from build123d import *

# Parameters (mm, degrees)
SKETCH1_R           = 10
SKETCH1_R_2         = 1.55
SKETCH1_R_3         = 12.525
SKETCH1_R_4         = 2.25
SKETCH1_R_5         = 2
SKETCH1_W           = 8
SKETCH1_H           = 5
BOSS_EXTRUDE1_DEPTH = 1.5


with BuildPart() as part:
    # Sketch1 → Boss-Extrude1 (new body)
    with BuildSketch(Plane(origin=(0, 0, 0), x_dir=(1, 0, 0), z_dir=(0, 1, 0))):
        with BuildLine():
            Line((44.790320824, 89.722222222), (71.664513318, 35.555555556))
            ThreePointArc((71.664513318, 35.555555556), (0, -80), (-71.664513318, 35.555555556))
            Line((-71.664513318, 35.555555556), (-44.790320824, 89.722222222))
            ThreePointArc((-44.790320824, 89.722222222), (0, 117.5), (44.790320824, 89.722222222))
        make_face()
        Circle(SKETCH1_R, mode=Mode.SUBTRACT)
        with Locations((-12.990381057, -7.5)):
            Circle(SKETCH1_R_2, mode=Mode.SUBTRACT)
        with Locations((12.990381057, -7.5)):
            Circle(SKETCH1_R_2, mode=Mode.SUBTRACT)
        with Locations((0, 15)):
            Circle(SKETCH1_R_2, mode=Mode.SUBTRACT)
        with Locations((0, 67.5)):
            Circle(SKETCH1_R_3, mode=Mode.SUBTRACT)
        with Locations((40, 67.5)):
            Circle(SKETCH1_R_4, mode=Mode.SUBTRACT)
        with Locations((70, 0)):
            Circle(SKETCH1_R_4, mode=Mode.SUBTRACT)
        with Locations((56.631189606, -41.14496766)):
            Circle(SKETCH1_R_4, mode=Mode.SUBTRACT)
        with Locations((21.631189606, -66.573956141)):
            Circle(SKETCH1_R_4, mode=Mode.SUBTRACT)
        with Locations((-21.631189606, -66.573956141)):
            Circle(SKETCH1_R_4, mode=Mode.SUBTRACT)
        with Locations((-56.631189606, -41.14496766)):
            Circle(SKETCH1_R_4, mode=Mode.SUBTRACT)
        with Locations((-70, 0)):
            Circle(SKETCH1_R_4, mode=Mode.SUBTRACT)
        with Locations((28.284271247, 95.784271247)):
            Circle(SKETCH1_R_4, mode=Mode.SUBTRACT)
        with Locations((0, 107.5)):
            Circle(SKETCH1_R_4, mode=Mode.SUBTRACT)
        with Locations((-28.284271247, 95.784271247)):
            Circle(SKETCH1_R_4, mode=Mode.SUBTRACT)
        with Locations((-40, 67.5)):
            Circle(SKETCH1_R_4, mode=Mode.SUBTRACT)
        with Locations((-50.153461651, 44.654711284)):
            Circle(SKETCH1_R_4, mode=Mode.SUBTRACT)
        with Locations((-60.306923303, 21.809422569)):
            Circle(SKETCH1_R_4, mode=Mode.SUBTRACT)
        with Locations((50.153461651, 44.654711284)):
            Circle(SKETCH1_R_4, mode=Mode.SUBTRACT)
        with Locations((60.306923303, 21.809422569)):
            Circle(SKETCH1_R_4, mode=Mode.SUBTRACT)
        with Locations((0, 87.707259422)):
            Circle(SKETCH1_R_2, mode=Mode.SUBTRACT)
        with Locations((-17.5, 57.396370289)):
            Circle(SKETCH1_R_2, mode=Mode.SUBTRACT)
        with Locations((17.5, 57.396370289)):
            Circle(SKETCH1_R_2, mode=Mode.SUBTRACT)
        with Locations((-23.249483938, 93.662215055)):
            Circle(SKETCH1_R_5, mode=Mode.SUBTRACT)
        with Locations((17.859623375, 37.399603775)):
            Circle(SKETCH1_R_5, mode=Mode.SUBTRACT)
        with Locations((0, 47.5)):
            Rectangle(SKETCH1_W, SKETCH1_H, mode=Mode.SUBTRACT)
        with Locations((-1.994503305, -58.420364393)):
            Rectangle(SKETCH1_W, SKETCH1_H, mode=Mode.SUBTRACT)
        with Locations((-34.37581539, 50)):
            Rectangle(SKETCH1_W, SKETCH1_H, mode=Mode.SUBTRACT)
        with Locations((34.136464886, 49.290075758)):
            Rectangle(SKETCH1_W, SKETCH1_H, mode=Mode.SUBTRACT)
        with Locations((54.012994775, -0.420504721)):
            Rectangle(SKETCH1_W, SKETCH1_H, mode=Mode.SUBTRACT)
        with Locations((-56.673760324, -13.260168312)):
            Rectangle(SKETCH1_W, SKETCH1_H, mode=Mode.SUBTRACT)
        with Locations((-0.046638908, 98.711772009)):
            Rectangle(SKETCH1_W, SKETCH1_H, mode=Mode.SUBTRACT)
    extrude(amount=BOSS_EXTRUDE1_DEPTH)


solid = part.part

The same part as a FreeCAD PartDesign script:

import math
import FreeCAD as App
import Part
import Sketcher

V = App.Vector
Q = App.Units.Quantity

doc = App.newDocument("Part")
body = doc.addObject("PartDesign::Body", "Body")

# Sketch on XZ plane
sketch1 = doc.addObject("Sketcher::SketchObject", "Sketch")
body.addObject(sketch1)
sketch1.AttachmentSupport = (doc.XZ_Plane, [""])
sketch1.MapMode = "FlatFace"
sketch1.addGeometry([
    Part.LineSegment(V(71.7, -35.6, 0), V(44.8, -89.7, 0)),  # 0
    Part.ArcOfCircle(Part.Circle(V(0, -67.5, 0), V(0, 0, 1), 50), math.radians(-154), math.radians(-26)),  # 1
    Part.LineSegment(V(-44.8, -89.7, 0), V(-71.7, -35.6, 0)),  # 2
    Part.ArcOfCircle(Part.Circle(V(0, 0, 0), V(0, 0, 1), 80), math.radians(-26), math.radians(206)),  # 3
    Part.Circle(V(56.6, 41.1, 0), V(0, 0, 1), 2.2),  # 4
    Part.Circle(V(21.6, 66.6, 0), V(0, 0, 1), 2.2),  # 5
    Part.Circle(V(70, 0, 0), V(0, 0, 1), 2.2),  # 6
    Part.LineSegment(V(50, 2.9, 0), V(50, -2.1, 0)),  # 7
    Part.LineSegment(V(50, -2.1, 0), V(58, -2.1, 0)),  # 8
    Part.LineSegment(V(58, -2.1, 0), V(58, 2.9, 0)),  # 9
    Part.LineSegment(V(58, 2.9, 0), V(50, 2.9, 0)),  # 10
    Part.Circle(V(13, 7.5, 0), V(0, 0, 1), 1.6),  # 11
    Part.LineSegment(V(-6, 60.9, 0), V(-6, 55.9, 0)),  # 12
    Part.LineSegment(V(-6, 55.9, 0), V(2, 55.9, 0)),  # 13
    Part.LineSegment(V(2, 55.9, 0), V(2, 60.9, 0)),  # 14
    Part.LineSegment(V(2, 60.9, 0), V(-6, 60.9, 0)),  # 15
    Part.Circle(V(-21.6, 66.6, 0), V(0, 0, 1), 2.2),  # 16
    Part.Circle(V(-56.6, 41.1, 0), V(0, 0, 1), 2.2),  # 17
    Part.Circle(V(-13, 7.5, 0), V(0, 0, 1), 1.6),  # 18
    Part.Circle(V(0, 0, 0), V(0, 0, 1), 10),  # 19
    Part.Circle(V(0, -15, 0), V(0, 0, 1), 1.6),  # 20
    Part.LineSegment(V(-60.7, 15.8, 0), V(-60.7, 10.8, 0)),  # 21
    Part.LineSegment(V(-60.7, 10.8, 0), V(-52.7, 10.8, 0)),  # 22
    Part.LineSegment(V(-52.7, 10.8, 0), V(-52.7, 15.8, 0)),  # 23
    Part.LineSegment(V(-52.7, 15.8, 0), V(-60.7, 15.8, 0)),  # 24
    Part.Circle(V(-70, 0, 0), V(0, 0, 1), 2.2),  # 25
    Part.Circle(V(60.3, -21.8, 0), V(0, 0, 1), 2.2),  # 26
    Part.Circle(V(50.2, -44.7, 0), V(0, 0, 1), 2.2),  # 27
    Part.Circle(V(17.9, -37.4, 0), V(0, 0, 1), 2),  # 28
    Part.LineSegment(V(30.1, -46.8, 0), V(30.1, -51.8, 0)),  # 29
    Part.LineSegment(V(30.1, -51.8, 0), V(38.1, -51.8, 0)),  # 30
    Part.LineSegment(V(38.1, -51.8, 0), V(38.1, -46.8, 0)),  # 31
    Part.LineSegment(V(38.1, -46.8, 0), V(30.1, -46.8, 0)),  # 32
    Part.Circle(V(17.5, -57.4, 0), V(0, 0, 1), 1.6),  # 33
    Part.Circle(V(40, -67.5, 0), V(0, 0, 1), 2.2),  # 34
    Part.Circle(V(28.3, -95.8, 0), V(0, 0, 1), 2.2),  # 35
    Part.LineSegment(V(-4, -45, 0), V(-4, -50, 0)),  # 36
    Part.LineSegment(V(-4, -50, 0), V(4, -50, 0)),  # 37
    Part.LineSegment(V(4, -50, 0), V(4, -45, 0)),  # 38
    Part.LineSegment(V(4, -45, 0), V(-4, -45, 0)),  # 39
    Part.Circle(V(-17.5, -57.4, 0), V(0, 0, 1), 1.6),  # 40
    Part.LineSegment(V(-38.4, -47.5, 0), V(-38.4, -52.5, 0)),  # 41
    Part.LineSegment(V(-38.4, -52.5, 0), V(-30.4, -52.5, 0)),  # 42
    Part.LineSegment(V(-30.4, -52.5, 0), V(-30.4, -47.5, 0)),  # 43
    Part.LineSegment(V(-30.4, -47.5, 0), V(-38.4, -47.5, 0)),  # 44
    Part.Circle(V(-60.3, -21.8, 0), V(0, 0, 1), 2.2),  # 45
    Part.Circle(V(-50.2, -44.7, 0), V(0, 0, 1), 2.2),  # 46
    Part.Circle(V(0, -67.5, 0), V(0, 0, 1), 12.5),  # 47
    Part.Circle(V(0, -87.7, 0), V(0, 0, 1), 1.6),  # 48
    Part.LineSegment(V(-4, -96.2, 0), V(-4, -101.2, 0)),  # 49
    Part.LineSegment(V(-4, -101.2, 0), V(4, -101.2, 0)),  # 50
    Part.LineSegment(V(4, -101.2, 0), V(4, -96.2, 0)),  # 51
    Part.LineSegment(V(4, -96.2, 0), V(-4, -96.2, 0)),  # 52
    Part.Circle(V(0, -107.5, 0), V(0, 0, 1), 2.2),  # 53
    Part.Circle(V(-23.2, -93.7, 0), V(0, 0, 1), 2),  # 54
    Part.Circle(V(-28.3, -95.8, 0), V(0, 0, 1), 2.2),  # 55
    Part.Circle(V(-40, -67.5, 0), V(0, 0, 1), 2.2),  # 56
], False)
sketch1.addConstraint([
    Sketcher.Constraint("Tangent", 0, 2, 1, 2),
    Sketcher.Constraint("Tangent", 1, 1, 2, 1),
    Sketcher.Constraint("Tangent", 2, 2, 3, 2),
    Sketcher.Constraint("Tangent", 3, 1, 0, 1),
    Sketcher.Constraint("Coincident", 7, 2, 8, 1),
    Sketcher.Constraint("Coincident", 8, 2, 9, 1),
    Sketcher.Constraint("Coincident", 9, 2, 10, 1),
    Sketcher.Constraint("Coincident", 10, 2, 7, 1),
    Sketcher.Constraint("Coincident", 12, 2, 13, 1),
    Sketcher.Constraint("Coincident", 13, 2, 14, 1),
    Sketcher.Constraint("Coincident", 14, 2, 15, 1),
    Sketcher.Constraint("Coincident", 15, 2, 12, 1),
    Sketcher.Constraint("Coincident", 21, 2, 22, 1),
    Sketcher.Constraint("Coincident", 22, 2, 23, 1),
    Sketcher.Constraint("Coincident", 23, 2, 24, 1),
    Sketcher.Constraint("Coincident", 24, 2, 21, 1),
    Sketcher.Constraint("Coincident", 29, 2, 30, 1),
    Sketcher.Constraint("Coincident", 30, 2, 31, 1),
    Sketcher.Constraint("Coincident", 31, 2, 32, 1),
    Sketcher.Constraint("Coincident", 32, 2, 29, 1),
    Sketcher.Constraint("Coincident", 36, 2, 37, 1),
    Sketcher.Constraint("Coincident", 37, 2, 38, 1),
    Sketcher.Constraint("Coincident", 38, 2, 39, 1),
    Sketcher.Constraint("Coincident", 39, 2, 36, 1),
    Sketcher.Constraint("Coincident", 41, 2, 42, 1),
    Sketcher.Constraint("Coincident", 42, 2, 43, 1),
    Sketcher.Constraint("Coincident", 43, 2, 44, 1),
    Sketcher.Constraint("Coincident", 44, 2, 41, 1),
    Sketcher.Constraint("Coincident", 49, 2, 50, 1),
    Sketcher.Constraint("Coincident", 50, 2, 51, 1),
    Sketcher.Constraint("Coincident", 51, 2, 52, 1),
    Sketcher.Constraint("Coincident", 52, 2, 49, 1),
    Sketcher.Constraint("Vertical", 7),
    Sketcher.Constraint("Horizontal", 8),
    Sketcher.Constraint("Vertical", 9),
    Sketcher.Constraint("Horizontal", 10),
    Sketcher.Constraint("Vertical", 12),
    Sketcher.Constraint("Horizontal", 13),
    Sketcher.Constraint("Vertical", 14),
    Sketcher.Constraint("Horizontal", 15),
    Sketcher.Constraint("Vertical", 21),
    Sketcher.Constraint("Horizontal", 22),
    Sketcher.Constraint("Vertical", 23),
    Sketcher.Constraint("Horizontal", 24),
    Sketcher.Constraint("Vertical", 29),
    Sketcher.Constraint("Horizontal", 30),
    Sketcher.Constraint("Vertical", 31),
    Sketcher.Constraint("Horizontal", 32),
    Sketcher.Constraint("Vertical", 36),
    Sketcher.Constraint("Horizontal", 37),
    Sketcher.Constraint("Vertical", 38),
    Sketcher.Constraint("Horizontal", 39),
    Sketcher.Constraint("Vertical", 41),
    Sketcher.Constraint("Horizontal", 42),
    Sketcher.Constraint("Vertical", 43),
    Sketcher.Constraint("Horizontal", 44),
    Sketcher.Constraint("Vertical", 49),
    Sketcher.Constraint("Horizontal", 50),
    Sketcher.Constraint("Vertical", 51),
    Sketcher.Constraint("Horizontal", 52),
    Sketcher.Constraint("Coincident", 3, 3, -1, 1),
    Sketcher.Constraint("Coincident", 19, 3, -1, 1),
    Sketcher.Constraint("Coincident", 47, 3, 1, 3),
    Sketcher.Constraint("Equal", 4, 5),
    Sketcher.Constraint("Equal", 5, 6),
    Sketcher.Constraint("Equal", 6, 16),
    Sketcher.Constraint("Equal", 16, 17),
    Sketcher.Constraint("Equal", 11, 18),
    Sketcher.Constraint("Equal", 18, 20),
    Sketcher.Constraint("Equal", 17, 25),
    Sketcher.Constraint("Equal", 25, 26),
    Sketcher.Constraint("Equal", 26, 27),
    Sketcher.Constraint("Equal", 20, 33),
    Sketcher.Constraint("Equal", 27, 34),
    Sketcher.Constraint("Equal", 34, 35),
    Sketcher.Constraint("Equal", 33, 40),
    Sketcher.Constraint("Equal", 35, 45),
    Sketcher.Constraint("Equal", 45, 46),
    Sketcher.Constraint("Equal", 40, 48),
    Sketcher.Constraint("Equal", 46, 53),
    Sketcher.Constraint("Equal", 28, 54),
    Sketcher.Constraint("Equal", 53, 55),
    Sketcher.Constraint("Equal", 55, 56),
    Sketcher.Constraint("Symmetric", 6, 3, 25, 3, -1, 1),
    Sketcher.Constraint("Symmetric", 5, 3, 16, 3, -2),
    Sketcher.Constraint("Symmetric", 4, 3, 17, 3, -2),
    Sketcher.Constraint("Symmetric", 11, 3, 18, 3, -2),
    Sketcher.Constraint("Symmetric", 33, 3, 40, 3, -2),
    Sketcher.Constraint("Symmetric", 26, 3, 45, 3, -2),
    Sketcher.Constraint("Symmetric", 27, 3, 46, 3, -2),
    Sketcher.Constraint("Symmetric", 35, 3, 55, 3, -2),
    Sketcher.Constraint("Symmetric", 34, 3, 56, 3, -2),
    Sketcher.Constraint("PointOnObject", 1, 3, -2),
    Sketcher.Constraint("PointOnObject", 6, 3, -1),
    Sketcher.Constraint("PointOnObject", 20, 3, -2),
    Sketcher.Constraint("PointOnObject", 48, 3, -2),
    Sketcher.Constraint("PointOnObject", 53, 3, -2),
    Sketcher.Constraint("Horizontal", 1, 3, 34, 3),
    Sketcher.Constraint("Equal", 10, 13),
    Sketcher.Constraint("Equal", 15, 22),
    Sketcher.Constraint("Equal", 24, 30),
    Sketcher.Constraint("Equal", 32, 37),
    Sketcher.Constraint("Equal", 39, 42),
    Sketcher.Constraint("Equal", 44, 50),
    Sketcher.Constraint("Equal", 9, 12),
    Sketcher.Constraint("Equal", 14, 21),
    Sketcher.Constraint("Equal", 23, 29),
    Sketcher.Constraint("Equal", 31, 36),
    Sketcher.Constraint("Equal", 38, 41),
    Sketcher.Constraint("Equal", 43, 49),
    Sketcher.Constraint("Diameter", 19, Q("20 mm")),
    Sketcher.Constraint("Diameter", 28, Q("4 mm")),
    Sketcher.Constraint("Radius", 1, Q("50 mm")),
    Sketcher.Constraint("Radius", 3, Q("80 mm")),
    Sketcher.Constraint("Diameter", 4, Q("4.5 mm")),
    Sketcher.Constraint("Diameter", 11, Q("3.1 mm")),
    Sketcher.Constraint("Diameter", 47, Q("25.05 mm")),
    Sketcher.Constraint("DistanceX", 8, 1, 8, 2, Q("8 mm")),
    Sketcher.Constraint("DistanceY", 7, 2, 7, 1, Q("5 mm")),
    Sketcher.Constraint("DistanceX", -1, 1, 6, 3, Q("70 mm")),
    Sketcher.Constraint("DistanceY", 20, 3, -1, 1, Q("15 mm")),
    Sketcher.Constraint("DistanceX", -1, 1, 34, 3, Q("40 mm")),
    Sketcher.Constraint("DistanceX", 36, 2, -1, 1, Q("4 mm")),
    Sketcher.Constraint("DistanceY", 36, 2, -1, 1, Q("50 mm")),
    Sketcher.Constraint("DistanceX", 5, 3, 4, 3, Q("35 mm")),
    Sketcher.Constraint("DistanceY", 1, 3, 11, 3, Q("75 mm")),
    Sketcher.Constraint("DistanceX", 40, 3, 33, 3, Q("35 mm")),
    Sketcher.Constraint("DistanceY", 53, 3, 1, 3, Q("40 mm")),
    Sketcher.Constraint("DistanceY", 56, 3, 41, 2, Q("15 mm")),
    Sketcher.Constraint("DistanceY", 1, 3, -1, 1, Q("67.5 mm")),
    Sketcher.Constraint("DistanceY", 35, 3, 33, 3, Q("38.387901 mm")),
    Sketcher.Constraint("DistanceY", 21, 2, 17, 3, Q("30.384799 mm")),
    Sketcher.Constraint("DistanceY", 49, 2, 55, 3, Q("5.427501 mm")),
    Sketcher.Constraint("DistanceX", -1, 1, 4, 3, Q("56.63119 mm")),
    Sketcher.Constraint("DistanceX", -1, 1, 11, 3, Q("12.990381 mm")),
    Sketcher.Constraint("DistanceX", -1, 1, 27, 3, Q("50.153462 mm")),
    Sketcher.Constraint("DistanceY", 27, 3, -1, 1, Q("44.654711 mm")),
    Sketcher.Constraint("DistanceY", 33, 3, -1, 1, Q("57.39637 mm")),
    Sketcher.Constraint("DistanceX", -1, 1, 35, 3, Q("28.284271 mm")),
    Sketcher.Constraint("DistanceY", 48, 3, -1, 1, Q("87.707259 mm")),
    Sketcher.Constraint("DistanceX", 21, 2, -1, 1, Q("60.67376 mm")),
    Sketcher.Constraint("DistanceY", -1, 1, 21, 2, Q("10.760168 mm")),
    Sketcher.Constraint("DistanceX", 49, 2, -1, 1, Q("4.046639 mm")),
    Sketcher.Constraint("DistanceY", 4, 3, 5, 3, Q("25.428988 mm")),
    Sketcher.Constraint("DistanceY", 26, 3, 4, 3, Q("62.95439 mm")),
    Sketcher.Constraint("DistanceX", 27, 3, 26, 3, Q("10.153462 mm")),
    Sketcher.Constraint("DistanceX", 28, 3, 27, 3, Q("32.293838 mm")),
    Sketcher.Constraint("DistanceY", 28, 3, 3, 1, Q("1.844048 mm")),
    Sketcher.Constraint("DistanceX", 7, 2, 26, 3, Q("10.293929 mm")),
    Sketcher.Constraint("DistanceY", 3, 1, 7, 2, Q("33.47606 mm")),
    Sketcher.Constraint("DistanceY", 12, 2, 16, 3, Q("10.653592 mm")),
    Sketcher.Constraint("DistanceX", 28, 3, 29, 2, Q("12.276842 mm")),
    Sketcher.Constraint("DistanceY", 29, 2, 28, 3, Q("14.390472 mm")),
    Sketcher.Constraint("DistanceX", 54, 3, -1, 1, Q("23.249484 mm")),
    Sketcher.Constraint("DistanceY", 54, 3, -1, 1, Q("93.662215 mm")),
    Sketcher.Constraint("DistanceX", 12, 2, -1, 1, Q("5.994503 mm")),
    Sketcher.Constraint("DistanceX", 41, 2, -1, 1, Q("38.375815 mm")),
])
pad1 = doc.addObject("PartDesign::Pad", "Pad")
body.addObject(pad1)
pad1.Profile = sketch1
pad1.Length = 1.5
pad1.Reversed = True

doc.recompute()
